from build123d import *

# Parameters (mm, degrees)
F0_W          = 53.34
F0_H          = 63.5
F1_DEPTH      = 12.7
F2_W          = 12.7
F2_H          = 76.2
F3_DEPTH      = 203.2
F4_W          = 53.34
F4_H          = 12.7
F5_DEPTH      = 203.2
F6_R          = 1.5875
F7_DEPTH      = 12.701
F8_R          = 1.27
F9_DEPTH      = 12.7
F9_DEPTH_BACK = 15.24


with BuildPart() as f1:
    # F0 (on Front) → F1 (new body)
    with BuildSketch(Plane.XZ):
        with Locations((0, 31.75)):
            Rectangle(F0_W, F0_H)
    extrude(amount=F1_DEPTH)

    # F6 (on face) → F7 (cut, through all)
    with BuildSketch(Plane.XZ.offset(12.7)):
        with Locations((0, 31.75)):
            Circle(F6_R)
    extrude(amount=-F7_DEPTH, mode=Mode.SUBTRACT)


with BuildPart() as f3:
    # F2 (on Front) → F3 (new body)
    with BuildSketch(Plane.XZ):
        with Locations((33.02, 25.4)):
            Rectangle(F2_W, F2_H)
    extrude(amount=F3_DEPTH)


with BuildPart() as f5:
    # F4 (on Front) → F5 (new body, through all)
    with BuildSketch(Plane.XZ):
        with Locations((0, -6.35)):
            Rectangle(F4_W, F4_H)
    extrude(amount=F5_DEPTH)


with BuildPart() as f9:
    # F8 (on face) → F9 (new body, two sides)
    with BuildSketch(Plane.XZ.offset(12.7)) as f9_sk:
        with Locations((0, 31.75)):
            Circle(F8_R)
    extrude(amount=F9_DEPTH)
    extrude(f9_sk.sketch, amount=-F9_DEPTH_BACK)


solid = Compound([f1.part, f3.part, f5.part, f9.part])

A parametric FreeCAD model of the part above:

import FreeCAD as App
import Part
import Sketcher

V = App.Vector
Q = App.Units.Quantity


def add_polygon(sketch, points):
    """Adds a closed chain of lines whose ends are joined by coincident constraints."""
    first, n = sketch.GeometryCount, len(points)
    for a, b in zip(points, points[1:] + points[:1]):
        sketch.addGeometry(Part.LineSegment(App.Vector(*a, 0), App.Vector(*b, 0)), False)
    for i in range(n):
        sketch.addConstraint(Sketcher.Constraint("Coincident", first + i, 2, first + (i + 1) % n, 1))

doc = App.newDocument("Part")
body = doc.addObject("PartDesign::Body", "Body")

sketch1 = body.newObject("Sketcher::SketchObject", "Sketch")
sketch1.AttachmentSupport = (doc.getObject("XZ_Plane"), [""])
sketch1.MapMode = "FlatFace"
add_polygon(sketch1, [(-26.67, 63.5), (-26.67, 0), (26.67, 0), (26.67, 63.5)])
sketch1.addConstraint([
    Sketcher.Constraint("Vertical", 0),
    Sketcher.Constraint("Horizontal", 1),
    Sketcher.Constraint("Vertical", 2),
    Sketcher.Constraint("Horizontal", 3),
    Sketcher.Constraint("Symmetric", 0, 2, 1, 2, -1, 1),
    Sketcher.Constraint("DistanceX", 1, 1, 1, 2, Q("2.1 in")),
    Sketcher.Constraint("DistanceY", 0, 2, 0, 1, Q("2.5 in")),
])
pad1 = body.newObject("PartDesign::Pad", "Pad")
pad1.Profile = sketch1
pad1.Length = Q("0.5 in")

sketch2 = body.newObject("Sketcher::SketchObject", "Sketch001")
sketch2.AttachmentSupport = (doc.getObject("XZ_Plane"), [""])
sketch2.MapMode = "FlatFace"
sketch2.AttachmentOffset = App.Placement(V(0, 0, 0.5 * 25.4), App.Rotation())
sketch2.addGeometry(Part.Circle(V(0, 31.75, 0), V(0, 0, 1), 1.5875), False)
sketch2.addConstraint([
    Sketcher.Constraint("PointOnObject", 0, 3, -2),
    Sketcher.Constraint("Diameter", 0, Q("0.125 in")),
    Sketcher.Constraint("DistanceY", -1, 1, 0, 3, Q("1.25 in")),
])
pocket1 = body.newObject("PartDesign::Pocket", "Pocket")
pocket1.Profile = sketch2
pocket1.Type = "ThroughAll"
body2 = doc.addObject("PartDesign::Body", "Body001")

sketch3 = body2.newObject("Sketcher::SketchObject", "Sketch002")
sketch3.AttachmentSupport = (doc.getObject("XZ_Plane001"), [""])
sketch3.MapMode = "FlatFace"
add_polygon(sketch3, [(26.67, 63.5), (26.67, -12.7), (39.37, -12.7), (39.37, 63.5)])
sketch3.addConstraint([
    Sketcher.Constraint("Vertical", 0),
    Sketcher.Constraint("Horizontal", 1),
    Sketcher.Constraint("Vertical", 2),
    Sketcher.Constraint("Horizontal", 3),
    Sketcher.Constraint("DistanceY", 0, 2, 0, 1, Q("3 in")),
    Sketcher.Constraint("DistanceX", 1, 1, 1, 2, Q("0.5 in")),
    Sketcher.Constraint("DistanceY", 0, 2, -1, 1, Q("0.5 in")),
    Sketcher.Constraint("DistanceX", -1, 1, 0, 2, Q("1.05 in")),
])
pad2 = body2.newObject("PartDesign::Pad", "Pad001")
pad2.Profile = sketch3
pad2.Length = Q("8 in")
body3 = doc.addObject("PartDesign::Body", "Body002")

sketch4 = body3.newObject("Sketcher::SketchObject", "Sketch003")
sketch4.AttachmentSupport = (doc.getObject("XZ_Plane002"), [""])
sketch4.MapMode = "FlatFace"
add_polygon(sketch4, [(-26.67, 0), (-26.67, -12.7), (26.67, -12.7), (26.67, 0)])
sketch4.addConstraint([
    Sketcher.Constraint("Vertical", 0),
    Sketcher.Constraint("Horizontal", 1),
    Sketcher.Constraint("Vertical", 2),
    Sketcher.Constraint("Horizontal", 3),
    Sketcher.Constraint("Symmetric", 2, 2, 3, 2, -1, 1),
    Sketcher.Constraint("DistanceX", 1, 1, 1, 2, Q("2.1 in")),
    Sketcher.Constraint("DistanceY", 0, 2, 0, 1, Q("0.5 in")),
])
pad3 = body3.newObject("PartDesign::Pad", "Pad002")
pad3.Profile = sketch4
pad3.Length = Q("8 in")
body4 = doc.addObject("PartDesign::Body", "Body003")

sketch5 = body4.newObject("Sketcher::SketchObject", "Sketch004")
sketch5.AttachmentSupport = (doc.getObject("XZ_Plane003"), [""])
sketch5.MapMode = "FlatFace"
sketch5.AttachmentOffset = App.Placement(V(0, 0, 0.5 * 25.4), App.Rotation())
sketch5.addGeometry(Part.Circle(V(0, 31.75, 0), V(0, 0, 1), 1.27), False)
sketch5.addConstraint([
    Sketcher.Constraint("PointOnObject", 0, 3, -2),
    Sketcher.Constraint("Diameter", 0, Q("0.1 in")),
    Sketcher.Constraint("DistanceY", -1, 1, 0, 3, Q("1.25 in")),
])
pad4 = body4.newObject("PartDesign::Pad", "Pad003")
pad4.Profile = sketch5
pad4.Type = "TwoLengths"
pad4.Length = Q("0.5 in")
pad4.Length2 = Q("0.6 in")

doc.recompute()
